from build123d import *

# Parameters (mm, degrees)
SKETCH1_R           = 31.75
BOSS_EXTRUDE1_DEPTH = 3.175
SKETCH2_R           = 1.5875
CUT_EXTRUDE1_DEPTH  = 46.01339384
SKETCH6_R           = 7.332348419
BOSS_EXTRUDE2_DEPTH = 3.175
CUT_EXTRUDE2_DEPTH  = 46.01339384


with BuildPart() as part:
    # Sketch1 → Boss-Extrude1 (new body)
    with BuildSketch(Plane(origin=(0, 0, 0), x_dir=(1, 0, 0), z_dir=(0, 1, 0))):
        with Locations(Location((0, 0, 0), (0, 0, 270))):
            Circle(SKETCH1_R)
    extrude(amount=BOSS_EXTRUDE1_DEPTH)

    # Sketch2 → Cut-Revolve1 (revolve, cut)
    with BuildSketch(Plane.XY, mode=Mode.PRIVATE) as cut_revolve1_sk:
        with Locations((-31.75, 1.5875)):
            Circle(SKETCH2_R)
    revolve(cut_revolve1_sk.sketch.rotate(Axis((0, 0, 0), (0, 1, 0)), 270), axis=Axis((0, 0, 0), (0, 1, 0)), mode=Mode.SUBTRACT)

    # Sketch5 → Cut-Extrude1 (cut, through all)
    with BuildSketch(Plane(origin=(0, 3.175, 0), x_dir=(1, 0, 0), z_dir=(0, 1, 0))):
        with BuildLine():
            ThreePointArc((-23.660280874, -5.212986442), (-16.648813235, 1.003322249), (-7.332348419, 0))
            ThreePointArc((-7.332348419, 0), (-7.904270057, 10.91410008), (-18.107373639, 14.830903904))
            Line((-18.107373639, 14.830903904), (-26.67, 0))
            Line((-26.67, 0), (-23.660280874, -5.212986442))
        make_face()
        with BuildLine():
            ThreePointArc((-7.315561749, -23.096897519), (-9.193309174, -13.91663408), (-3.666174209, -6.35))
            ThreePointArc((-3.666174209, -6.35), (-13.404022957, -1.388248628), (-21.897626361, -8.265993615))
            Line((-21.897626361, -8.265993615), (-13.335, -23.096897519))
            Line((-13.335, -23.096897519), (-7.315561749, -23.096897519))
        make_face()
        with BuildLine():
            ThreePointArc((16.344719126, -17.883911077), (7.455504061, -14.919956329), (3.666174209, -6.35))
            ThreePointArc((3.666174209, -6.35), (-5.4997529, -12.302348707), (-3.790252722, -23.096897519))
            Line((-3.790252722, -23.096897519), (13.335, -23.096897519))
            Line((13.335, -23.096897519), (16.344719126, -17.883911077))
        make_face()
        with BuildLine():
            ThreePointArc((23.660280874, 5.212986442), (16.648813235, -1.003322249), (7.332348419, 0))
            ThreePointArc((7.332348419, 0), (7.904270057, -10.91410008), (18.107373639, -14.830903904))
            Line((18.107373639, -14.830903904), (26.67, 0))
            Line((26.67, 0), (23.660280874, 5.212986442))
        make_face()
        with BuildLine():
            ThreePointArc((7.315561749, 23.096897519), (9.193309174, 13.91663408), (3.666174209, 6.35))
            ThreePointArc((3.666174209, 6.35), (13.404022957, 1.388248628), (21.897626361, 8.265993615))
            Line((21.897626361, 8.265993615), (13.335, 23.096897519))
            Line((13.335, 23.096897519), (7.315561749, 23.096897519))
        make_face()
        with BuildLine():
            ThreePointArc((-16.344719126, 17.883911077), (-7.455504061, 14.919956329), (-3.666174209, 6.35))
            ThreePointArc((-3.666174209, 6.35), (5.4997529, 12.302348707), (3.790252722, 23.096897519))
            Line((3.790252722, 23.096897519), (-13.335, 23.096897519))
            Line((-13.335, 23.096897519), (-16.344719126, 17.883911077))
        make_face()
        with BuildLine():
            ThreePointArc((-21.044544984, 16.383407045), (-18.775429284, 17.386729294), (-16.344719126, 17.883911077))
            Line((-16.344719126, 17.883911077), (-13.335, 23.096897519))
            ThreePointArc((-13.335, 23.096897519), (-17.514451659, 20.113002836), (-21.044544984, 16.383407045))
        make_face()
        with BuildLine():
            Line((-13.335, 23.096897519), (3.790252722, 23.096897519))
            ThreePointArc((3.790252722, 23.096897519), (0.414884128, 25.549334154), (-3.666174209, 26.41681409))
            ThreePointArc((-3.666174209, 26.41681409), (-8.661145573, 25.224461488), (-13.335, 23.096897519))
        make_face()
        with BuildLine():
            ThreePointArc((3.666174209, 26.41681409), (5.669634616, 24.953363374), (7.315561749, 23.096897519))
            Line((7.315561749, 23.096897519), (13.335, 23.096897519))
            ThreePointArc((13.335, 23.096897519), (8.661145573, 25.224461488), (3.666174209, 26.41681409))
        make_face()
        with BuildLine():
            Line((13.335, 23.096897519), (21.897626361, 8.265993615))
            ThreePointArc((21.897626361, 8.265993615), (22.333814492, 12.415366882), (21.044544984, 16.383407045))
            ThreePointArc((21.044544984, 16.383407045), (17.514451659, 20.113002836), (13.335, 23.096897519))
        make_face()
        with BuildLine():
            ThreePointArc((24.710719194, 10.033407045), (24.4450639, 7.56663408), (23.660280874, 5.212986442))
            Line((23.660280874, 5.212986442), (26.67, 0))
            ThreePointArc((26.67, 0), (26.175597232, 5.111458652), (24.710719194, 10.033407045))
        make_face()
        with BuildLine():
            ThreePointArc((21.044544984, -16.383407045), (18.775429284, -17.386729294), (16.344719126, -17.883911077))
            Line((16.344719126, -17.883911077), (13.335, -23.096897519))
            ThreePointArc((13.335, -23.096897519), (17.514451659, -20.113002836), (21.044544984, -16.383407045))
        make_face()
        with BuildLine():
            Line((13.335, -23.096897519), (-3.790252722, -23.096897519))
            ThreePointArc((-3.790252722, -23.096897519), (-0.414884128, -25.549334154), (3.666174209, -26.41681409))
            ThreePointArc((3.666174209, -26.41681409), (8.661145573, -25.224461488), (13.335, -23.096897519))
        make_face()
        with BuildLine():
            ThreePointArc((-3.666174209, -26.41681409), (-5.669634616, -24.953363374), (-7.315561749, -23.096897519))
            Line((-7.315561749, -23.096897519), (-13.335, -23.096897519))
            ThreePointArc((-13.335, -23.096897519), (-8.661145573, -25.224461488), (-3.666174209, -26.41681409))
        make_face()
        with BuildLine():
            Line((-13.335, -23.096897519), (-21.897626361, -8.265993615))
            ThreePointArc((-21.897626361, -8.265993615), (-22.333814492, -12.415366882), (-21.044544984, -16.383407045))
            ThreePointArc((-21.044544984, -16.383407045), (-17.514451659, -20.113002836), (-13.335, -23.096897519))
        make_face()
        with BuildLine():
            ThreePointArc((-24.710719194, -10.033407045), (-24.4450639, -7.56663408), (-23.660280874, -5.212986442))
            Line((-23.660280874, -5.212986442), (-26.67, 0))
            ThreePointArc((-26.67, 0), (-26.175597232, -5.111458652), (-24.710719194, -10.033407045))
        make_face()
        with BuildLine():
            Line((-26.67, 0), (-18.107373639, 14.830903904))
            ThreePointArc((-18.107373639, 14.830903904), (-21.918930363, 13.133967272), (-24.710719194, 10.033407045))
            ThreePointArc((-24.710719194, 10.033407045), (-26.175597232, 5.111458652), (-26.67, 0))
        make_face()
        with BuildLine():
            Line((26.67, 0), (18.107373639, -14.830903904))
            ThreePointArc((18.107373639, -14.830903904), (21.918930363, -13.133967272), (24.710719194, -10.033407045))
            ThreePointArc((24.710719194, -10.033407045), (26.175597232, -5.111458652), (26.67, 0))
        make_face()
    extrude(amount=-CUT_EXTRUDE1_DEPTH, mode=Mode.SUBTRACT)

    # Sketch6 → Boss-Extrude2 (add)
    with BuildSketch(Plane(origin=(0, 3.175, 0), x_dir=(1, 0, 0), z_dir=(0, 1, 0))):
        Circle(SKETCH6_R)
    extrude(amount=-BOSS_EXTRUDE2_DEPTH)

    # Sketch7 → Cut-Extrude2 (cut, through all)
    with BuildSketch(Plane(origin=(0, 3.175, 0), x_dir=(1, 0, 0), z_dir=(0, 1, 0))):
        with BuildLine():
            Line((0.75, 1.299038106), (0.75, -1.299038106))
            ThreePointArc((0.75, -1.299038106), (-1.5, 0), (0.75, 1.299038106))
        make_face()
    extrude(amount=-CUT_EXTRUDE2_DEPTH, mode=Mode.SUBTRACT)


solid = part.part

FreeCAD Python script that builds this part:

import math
import FreeCAD as App
import Part
import Sketcher
Q = App.Units.Quantity

doc = App.newDocument("Part")
body = doc.addObject("PartDesign::Body", "Body")

sketch1 = body.newObject("Sketcher::SketchObject", "Sketch")
sketch1.AttachmentSupport = (doc.getObject("XZ_Plane"), [""])
sketch1.MapMode = "FlatFace"
sketch1.addGeometry(Part.Circle(App.Vector(0, 0, 0), App.Vector(0, 0, 1), 31.75), False)
sketch1.addConstraint([
    Sketcher.Constraint("Coincident", 0, 3, -1, 1),
    Sketcher.Constraint("Diameter", 0, Q("2.5 in")),
])
pad1 = body.newObject("PartDesign::Pad", "Pad")
pad1.Profile = sketch1
pad1.Length = Q("0.125 in")
pad1.Reversed = True

sketch2 = body.newObject("Sketcher::SketchObject", "Sketch001")
sketch2.AttachmentSupport = (doc.getObject("XY_Plane"), [""])
sketch2.MapMode = "FlatFace"
sketch2.addGeometry(Part.Circle(App.Vector(-31.75, 1.5875, 0), App.Vector(0, 0, 1), 1.5875), False)
sketch2.addConstraint([
    Sketcher.Constraint("Diameter", 0, Q("0.125 in")),
    Sketcher.Constraint("DistanceX", 0, 3, -1, 1, Q("1.25 in")),
    Sketcher.Constraint("DistanceY", -1, 1, 0, 3, Q("0.0625 in")),
])
groove = body.newObject("PartDesign::Groove", "Groove")
groove.Profile = sketch2
groove.ReferenceAxis = (sketch2, ["V_Axis"])
groove.Angle = 360

sketch3 = body.newObject("Sketcher::SketchObject", "Sketch002")
sketch3.AttachmentSupport = (doc.getObject("XZ_Plane"), [""])
sketch3.MapMode = "FlatFace"
sketch3.AttachmentOffset = App.Placement(App.Vector(0, 0, -0.125 * 25.4), App.Rotation())
sketch3.addGeometry([
    Part.ArcOfCircle(Part.Circle(App.Vector(-13.125139, 10.033407, 0), App.Vector(0, 0, 1), 11.585581), math.radians(-155.413238), math.radians(-60)),
    Part.ArcOfCircle(Part.Circle(App.Vector(-16.021534, -5.016704, 0), App.Vector(0, 0, 1), 10.033407), math.radians(-101.998699), math.radians(30)),
    Part.ArcOfCircle(Part.Circle(App.Vector(-16.021534, -5.016704, 0), App.Vector(0, 0, 1), 10.033407), math.radians(-150), math.radians(-101.998699)),
    Part.ArcOfCircle(Part.Circle(App.Vector(0, 0, 0), App.Vector(0, 0, 1), 26.67), math.radians(180), math.radians(202.098854)),
    Part.ArcOfCircle(Part.Circle(App.Vector(0, 0, 0), App.Vector(0, 0, 1), 26.67), math.radians(157.901146), math.radians(180)),
    Part.ArcOfCircle(Part.Circle(App.Vector(-13.125139, 10.033407, 0), App.Vector(0, 0, 1), 11.585581), math.radians(180), math.radians(204.586762)),
    Part.ArcOfCircle(Part.Circle(App.Vector(2.126616, 16.383407, 0), App.Vector(0, 0, 1), 11.585581), math.radians(144.586762), math.radians(240)),
    Part.ArcOfCircle(Part.Circle(App.Vector(-12.35536, 11.366704, 0), App.Vector(0, 0, 1), 10.033407), math.radians(-161.998699), math.radians(-30)),
    Part.ArcOfCircle(Part.Circle(App.Vector(-12.35536, 11.366704, 0), App.Vector(0, 0, 1), 10.033407), math.radians(150), math.radians(198.001301)),
    Part.ArcOfCircle(Part.Circle(App.Vector(0, 0, 0), App.Vector(0, 0, 1), 26.67), math.radians(120), math.radians(142.098854)),
    Part.ArcOfCircle(Part.Circle(App.Vector(0, 0, 0), App.Vector(0, 0, 1), 26.67), math.radians(97.901146), math.radians(120)),
    Part.ArcOfCircle(Part.Circle(App.Vector(2.126616, 16.383407, 0), App.Vector(0, 0, 1), 11.585581), math.radians(120), math.radians(144.586762)),
    Part.ArcOfCircle(Part.Circle(App.Vector(15.251755, 6.35, 0), App.Vector(0, 0, 1), 11.585581), math.radians(84.586762), math.radians(180)),
    Part.ArcOfCircle(Part.Circle(App.Vector(3.666174, 16.383407, 0), App.Vector(0, 0, 1), 10.033407), math.radians(138.001301), math.radians(270)),
    Part.ArcOfCircle(Part.Circle(App.Vector(3.666174, 16.383407, 0), App.Vector(0, 0, 1), 10.033407), math.radians(90), math.radians(138.001301)),
    Part.ArcOfCircle(Part.Circle(App.Vector(0, 0, 0), App.Vector(0, 0, 1), 26.67), math.radians(60), math.radians(82.098854)),
    Part.ArcOfCircle(Part.Circle(App.Vector(0, 0, 0), App.Vector(0, 0, 1), 26.67), math.radians(37.901146), math.radians(60)),
    Part.ArcOfCircle(Part.Circle(App.Vector(15.251755, 6.35, 0), App.Vector(0, 0, 1), 11.585581), math.radians(60), math.radians(84.586762)),
    Part.ArcOfCircle(Part.Circle(App.Vector(13.125139, -10.033407, 0), App.Vector(0, 0, 1), 11.585581), math.radians(24.586762), math.radians(120)),
    Part.ArcOfCircle(Part.Circle(App.Vector(16.021534, 5.016704, 0), App.Vector(0, 0, 1), 10.033407), math.radians(78.001301), math.radians(210)),
    Part.ArcOfCircle(Part.Circle(App.Vector(16.021534, 5.016704, 0), App.Vector(0, 0, 1), 10.033407), math.radians(30), math.radians(78.001301)),
    Part.ArcOfCircle(Part.Circle(App.Vector(0, 0, 0), App.Vector(0, 0, 1), 26.67), math.radians(0), math.radians(22.098854)),
    Part.ArcOfCircle(Part.Circle(App.Vector(0, 0, 0), App.Vector(0, 0, 1), 26.67), math.radians(-22.098854), math.radians(0)),
    Part.ArcOfCircle(Part.Circle(App.Vector(13.125139, -10.033407, 0), App.Vector(0, 0, 1), 11.585581), math.radians(0), math.radians(24.586762)),
    Part.ArcOfCircle(Part.Circle(App.Vector(-2.126616, -16.383407, 0), App.Vector(0, 0, 1), 11.585581), math.radians(-35.413238), math.radians(60)),
    Part.ArcOfCircle(Part.Circle(App.Vector(12.35536, -11.366704, 0), App.Vector(0, 0, 1), 10.033407), math.radians(18.001301), math.radians(150)),
    Part.ArcOfCircle(Part.Circle(App.Vector(12.35536, -11.366704, 0), App.Vector(0, 0, 1), 10.033407), math.radians(-30), math.radians(18.001301)),
    Part.ArcOfCircle(Part.Circle(App.Vector(0, 0, 0), App.Vector(0, 0, 1), 26.67), math.radians(-60), math.radians(-37.901146)),
    Part.ArcOfCircle(Part.Circle(App.Vector(0, 0, 0), App.Vector(0, 0, 1), 26.67), math.radians(-82.098854), math.radians(-60)),
    Part.ArcOfCircle(Part.Circle(App.Vector(-2.126616, -16.383407, 0), App.Vector(0, 0, 1), 11.585581), math.radians(-60), math.radians(-35.413238)),
    Part.ArcOfCircle(Part.Circle(App.Vector(-15.251755, -6.35, 0), App.Vector(0, 0, 1), 11.585581), math.radians(-95.413238), math.radians(0)),
    Part.ArcOfCircle(Part.Circle(App.Vector(-3.666174, -16.383407, 0), App.Vector(0, 0, 1), 10.033407), math.radians(-41.998699), math.radians(90)),
    Part.ArcOfCircle(Part.Circle(App.Vector(-3.666174, -16.383407, 0), App.Vector(0, 0, 1), 10.033407), math.radians(-90), math.radians(-41.998699)),
    Part.ArcOfCircle(Part.Circle(App.Vector(0, 0, 0), App.Vector(0, 0, 1), 26.67), math.radians(-120), math.radians(-97.901146)),
    Part.ArcOfCircle(Part.Circle(App.Vector(0, 0, 0), App.Vector(0, 0, 1), 26.67), math.radians(-142.098854), math.radians(-120)),
    Part.ArcOfCircle(Part.Circle(App.Vector(-15.251755, -6.35, 0), App.Vector(0, 0, 1), 11.585581), math.radians(-120), math.radians(-95.413238)),
], False)
sketch3.addConstraint([
    Sketcher.Constraint("Coincident", 0, 2, 1, 2),
    Sketcher.Constraint("Tangent", 1, 1, 2, 2),
    Sketcher.Constraint("Coincident", 2, 1, 3, 2),
    Sketcher.Constraint("Tangent", 3, 1, 4, 2),
    Sketcher.Constraint("Coincident", 4, 1, 5, 1),
    Sketcher.Constraint("Tangent", 5, 2, 0, 1),
    Sketcher.Constraint("Coincident", 6, 2, 7, 2),
    Sketcher.Constraint("Tangent", 7, 1, 8, 2),
    Sketcher.Constraint("Coincident", 8, 1, 9, 2),
    Sketcher.Constraint("Tangent", 9, 1, 10, 2),
    Sketcher.Constraint("Coincident", 10, 1, 11, 1),
    Sketcher.Constraint("Tangent", 11, 2, 6, 1),
    Sketcher.Constraint("Coincident", 12, 2, 13, 2),
    Sketcher.Constraint("Tangent", 13, 1, 14, 2),
    Sketcher.Constraint("Coincident", 14, 1, 15, 2),
    Sketcher.Constraint("Tangent", 15, 1, 16, 2),
    Sketcher.Constraint("Coincident", 16, 1, 17, 1),
    Sketcher.Constraint("Tangent", 17, 2, 12, 1),
    Sketcher.Constraint("Coincident", 18, 2, 19, 2),
    Sketcher.Constraint("Tangent", 19, 1, 20, 2),
    Sketcher.Constraint("Coincident", 20, 1, 21, 2),
    Sketcher.Constraint("Tangent", 21, 1, 22, 2),
    Sketcher.Constraint("Coincident", 22, 1, 23, 1),
    Sketcher.Constraint("Tangent", 23, 2, 18, 1),
    Sketcher.Constraint("Coincident", 24, 2, 25, 2),
    Sketcher.Constraint("Tangent", 25, 1, 26, 2),
    Sketcher.Constraint("Coincident", 26, 1, 27, 2),
    Sketcher.Constraint("Tangent", 27, 1, 28, 2),
    Sketcher.Constraint("Coincident", 28, 1, 29, 1),
    Sketcher.Constraint("Tangent", 29, 2, 24, 1),
    Sketcher.Constraint("Coincident", 30, 2, 31, 2),
    Sketcher.Constraint("Tangent", 31, 1, 32, 2),
    Sketcher.Constraint("Coincident", 32, 1, 33, 2),
    Sketcher.Constraint("Tangent", 33, 1, 34, 2),
    Sketcher.Constraint("Coincident", 34, 1, 35, 1),
    Sketcher.Constraint("Tangent", 35, 2, 30, 1),
    Sketcher.Constraint("Coincident", 3, 3, -1, 1),
    Sketcher.Constraint("Coincident", 9, 3, -1, 1),
    Sketcher.Constraint("Coincident", 15, 3, -1, 1),
    Sketcher.Constraint("Coincident", 21, 3, -1, 1),
    Sketcher.Constraint("Coincident", 27, 3, -1, 1),
    Sketcher.Constraint("Coincident", 33, 3, -1, 1),
    Sketcher.Constraint("Equal", 1, 2),
    Sketcher.Constraint("Equal", 3, 4),
    Sketcher.Constraint("Equal", 0, 5),
    Sketcher.Constraint("Equal", 5, 6),
    Sketcher.Constraint("Equal", 2, 7),
    Sketcher.Constraint("Equal", 7, 8),
    Sketcher.Constraint("Equal", 4, 9),
    Sketcher.Constraint("Equal", 9, 10),
    Sketcher.Constraint("Equal", 6, 11),
    Sketcher.Constraint("Equal", 11, 12),
    Sketcher.Constraint("Equal", 8, 13),
    Sketcher.Constraint("Equal", 13, 14),
    Sketcher.Constraint("Equal", 10, 15),
    Sketcher.Constraint("Equal", 15, 16),
    Sketcher.Constraint("Equal", 12, 17),
    Sketcher.Constraint("Equal", 17, 18),
    Sketcher.Constraint("Equal", 14, 19),
    Sketcher.Constraint("Equal", 19, 20),
    Sketcher.Constraint("Equal", 16, 21),
    Sketcher.Constraint("Equal", 21, 22),
    Sketcher.Constraint("Equal", 18, 23),
    Sketcher.Constraint("Equal", 23, 24),
    Sketcher.Constraint("Equal", 20, 25),
    Sketcher.Constraint("Equal", 25, 26),
    Sketcher.Constraint("Equal", 22, 27),
    Sketcher.Constraint("Equal", 27, 28),
    Sketcher.Constraint("Equal", 24, 29),
    Sketcher.Constraint("Equal", 29, 30),
    Sketcher.Constraint("Equal", 26, 31),
    Sketcher.Constraint("Equal", 31, 32),
    Sketcher.Constraint("Equal", 28, 33),
    Sketcher.Constraint("Equal", 33, 34),
    Sketcher.Constraint("Equal", 30, 35),
    Sketcher.Constraint("Symmetric", 0, 3, 18, 3, -1, 1),
    Sketcher.Constraint("Symmetric", 1, 3, 19, 3, -1, 1),
    Sketcher.Constraint("Symmetric", 6, 3, 24, 3, -1, 1),
    Sketcher.Constraint("Symmetric", 7, 3, 25, 3, -1, 1),
    Sketcher.Constraint("Symmetric", 12, 3, 30, 3, -1, 1),
    Sketcher.Constraint("Symmetric", 13, 3, 31, 3, -1, 1),
    Sketcher.Constraint("Symmetric", 6, 2, 12, 2, -2),
    Sketcher.Constraint("PointOnObject", 0, 2, -1),
    Sketcher.Constraint("PointOnObject", 3, 1, -1),
    Sketcher.Constraint("PointOnObject", 21, 1, -1),
    Sketcher.Constraint("Horizontal", 11, 3, 13, 3),
    Sketcher.Constraint("Horizontal", 23, 3, 2, 1),
    Sketcher.Constraint("Horizontal", 5, 3, 4, 1),
    Sketcher.Constraint("Horizontal", 17, 3, 6, 2),
    Sketcher.Constraint("Horizontal", 14, 3, 8, 1),
    Sketcher.Constraint("Horizontal", 9, 1, 11, 2),
    Sketcher.Constraint("Horizontal", 11, 2, 13, 1),
    Sketcher.Constraint("Horizontal", 10, 1, 14, 1),
    Sketcher.Constraint("Horizontal", 13, 1, 15, 1),
    Sketcher.Constraint("Horizontal", 8, 1, 16, 1),
    Sketcher.Constraint("Horizontal", 27, 1, 29, 2),
    Sketcher.Constraint("Horizontal", 29, 2, 31, 1),
    Sketcher.Constraint("Horizontal", 31, 1, 33, 1),
    Sketcher.Constraint("Vertical", 32, 3, 6, 2),
    Sketcher.Constraint("Vertical", 15, 1, 27, 1),
    Sketcher.Constraint("Radius", 3, Q("1.05 in")),
    Sketcher.Constraint("DistanceY", -1, 1, 12, 3, Q("0.25 in")),
    Sketcher.Constraint("DistanceX", 9, 1, -1, 1, Q("0.525 in")),
    Sketcher.Constraint("DistanceX", 7, 3, -1, 1, 12.35536),
    Sketcher.Constraint("DistanceX", 5, 2, -1, 1, 23.660281),
    Sketcher.Constraint("DistanceX", -1, 1, 17, 2, 16.344719),
    Sketcher.Constraint("DistanceX", -1, 1, 23, 2, 23.660281),
    Sketcher.Constraint("DistanceX", 35, 2, -1, 1, 16.344719),
    Sketcher.Constraint("DistanceX", 1, 3, -1, 1, 16.021534),
    Sketcher.Constraint("DistanceX", 1, 1, -1, 1, 18.107374),
    Sketcher.Constraint("DistanceX", 7, 1, -1, 1, 21.897626),
    Sketcher.Constraint("DistanceX", -1, 1, 19, 1, 18.107374),
    Sketcher.Constraint("DistanceX", -1, 1, 25, 1, 21.897626),
])
pocket1 = body.newObject("PartDesign::Pocket", "Pocket")
pocket1.Profile = sketch3
pocket1.Type = "ThroughAll"
pocket1.Reversed = True

sketch4 = body.newObject("Sketcher::SketchObject", "Sketch003")
sketch4.AttachmentSupport = (doc.getObject("XZ_Plane"), [""])
sketch4.MapMode = "FlatFace"
sketch4.AttachmentOffset = App.Placement(App.Vector(0, 0, -0.125 * 25.4), App.Rotation())
sketch4.addGeometry(Part.Circle(App.Vector(0, 0, 0), App.Vector(0, 0, 1), 7.332348), False)
sketch4.addConstraint([
    Sketcher.Constraint("Coincident", 0, 3, -1, 1),
    Sketcher.Constraint("Diameter", 0, 14.664697),
])
pad2 = body.newObject("PartDesign::Pad", "Pad001")
pad2.Profile = sketch4
pad2.Length = Q("0.125 in")

sketch5 = body.newObject("Sketcher::SketchObject", "Sketch004")
sketch5.AttachmentSupport = (doc.getObject("XZ_Plane"), [""])
sketch5.MapMode = "FlatFace"
sketch5.AttachmentOffset = App.Placement(App.Vector(0, 0, -0.125 * 25.4), App.Rotation())
sketch5.addGeometry([
    Part.LineSegment(App.Vector(0.75, 1.299038, 0), App.Vector(0.75, -1.299038, 0)),
    Part.ArcOfCircle(Part.Circle(App.Vector(0, 0, 0), App.Vector(0, 0, 1), 1.5), math.radians(60), math.radians(300)),
], False)
sketch5.addConstraint([
    Sketcher.Constraint("Coincident", 0, 1, 1, 1),
    Sketcher.Constraint("Coincident", 1, 2, 0, 2),
    Sketcher.Constraint("Vertical", 0),
    Sketcher.Constraint("Coincident", 1, 3, -1, 1),
    Sketcher.Constraint("Radius", 1, 1.5),
    Sketcher.Constraint("DistanceX", -1, 1, 0, 1, 0.75),
])
pocket2 = body.newObject("PartDesign::Pocket", "Pocket001")
pocket2.Profile = sketch5
pocket2.Type = "ThroughAll"
pocket2.Reversed = True

doc.recompute()
